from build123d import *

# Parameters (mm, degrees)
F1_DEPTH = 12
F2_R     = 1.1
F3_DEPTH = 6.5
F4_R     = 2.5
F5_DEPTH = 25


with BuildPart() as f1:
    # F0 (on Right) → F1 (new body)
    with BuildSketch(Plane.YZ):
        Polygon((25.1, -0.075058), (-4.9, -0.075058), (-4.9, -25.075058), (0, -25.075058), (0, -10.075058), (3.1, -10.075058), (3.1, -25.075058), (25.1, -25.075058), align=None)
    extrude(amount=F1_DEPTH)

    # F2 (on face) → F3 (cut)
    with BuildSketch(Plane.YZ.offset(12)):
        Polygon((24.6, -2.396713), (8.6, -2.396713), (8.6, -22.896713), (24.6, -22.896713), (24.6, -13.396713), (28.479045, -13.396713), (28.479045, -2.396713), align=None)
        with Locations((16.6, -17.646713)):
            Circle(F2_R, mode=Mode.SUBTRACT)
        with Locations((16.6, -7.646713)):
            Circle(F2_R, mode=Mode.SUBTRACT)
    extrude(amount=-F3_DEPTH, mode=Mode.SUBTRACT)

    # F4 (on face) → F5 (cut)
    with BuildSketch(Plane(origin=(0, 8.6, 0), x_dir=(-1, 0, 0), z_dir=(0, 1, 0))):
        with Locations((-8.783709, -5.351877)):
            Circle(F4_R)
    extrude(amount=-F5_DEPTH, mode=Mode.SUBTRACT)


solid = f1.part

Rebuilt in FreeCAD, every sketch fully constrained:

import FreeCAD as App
import Part
import Sketcher
from FreeCAD import Vector
Q = App.Units.Quantity


def add_polygon(sketch, points):
    """Adds a closed chain of lines whose ends are joined by coincident constraints."""
    first, n = sketch.GeometryCount, len(points)
    for a, b in zip(points, points[1:] + points[:1]):
        sketch.addGeometry(Part.LineSegment(App.Vector(*a, 0), App.Vector(*b, 0)), False)
    for i in range(n):
        sketch.addConstraint(Sketcher.Constraint("Coincident", first + i, 2, first + (i + 1) % n, 1))

doc = App.newDocument("Part")
body = doc.addObject("PartDesign::Body", "Body")

sketch1 = body.newObject("Sketcher::SketchObject", "Sketch")
sketch1.AttachmentSupport = (doc.getObject("YZ_Plane"), [""])
sketch1.MapMode = "FlatFace"
add_polygon(sketch1, [(25.1, -0.075058), (-4.9, -0.075058), (-4.9, -25.075058), (0, -25.075058), (0, -10.075058), (3.1, -10.075058), (3.1, -25.075058), (25.1, -25.075058)])
sketch1.addConstraint(Sketcher.Constraint("Horizontal", 0))
sketch1.addConstraint(Sketcher.Constraint("Vertical", 1))
sketch1.addConstraint(Sketcher.Constraint("Horizontal", 2))
sketch1.addConstraint(Sketcher.Constraint("Vertical", 3))
sketch1.addConstraint(Sketcher.Constraint("Horizontal", 4))
sketch1.addConstraint(Sketcher.Constraint("Vertical", 5))
sketch1.addConstraint(Sketcher.Constraint("Horizontal", 6))
sketch1.addConstraint(Sketcher.Constraint("Vertical", 7))
sketch1.addConstraint(Sketcher.Constraint("PointOnObject", 2, 2, -2))
sketch1.addConstraint(Sketcher.Constraint("Horizontal", 2, 2, 5, 2))
sketch1.addConstraint(Sketcher.Constraint("DistanceX", 0, 2, 0, 1, Q("30 mm")))
sketch1.addConstraint(Sketcher.Constraint("DistanceX", 6, 1, 6, 2, Q("22 mm")))
sketch1.addConstraint(Sketcher.Constraint("DistanceY", 1, 2, 1, 1, Q("25 mm")))
sketch1.addConstraint(Sketcher.Constraint("DistanceY", 3, 1, 3, 2, Q("15 mm")))
sketch1.addConstraint(Sketcher.Constraint("DistanceX", 2, 1, 2, 2, Q("4.9 mm")))
sketch1.addConstraint(Sketcher.Constraint("DistanceY", 0, 2, -1, 1, Q("0.075058 mm")))
pad1 = body.newObject("PartDesign::Pad", "Pad")
pad1.Profile = sketch1
pad1.Length = 12

sketch2 = body.newObject("Sketcher::SketchObject", "Sketch001")
sketch2.AttachmentSupport = (doc.getObject("YZ_Plane"), [""])
sketch2.MapMode = "FlatFace"
sketch2.AttachmentOffset = App.Placement(Vector(0, 0, 12), App.Rotation())
add_polygon(sketch2, [(8.6, -2.396713), (8.6, -22.896713), (24.6, -22.896713), (24.6, -13.396713), (28.479045, -13.396713), (28.479045, -2.396713)])
sketch2.addGeometry(Part.Circle(Vector(16.6, -17.646713, 0), Vector(0, 0, 1), 1.1), False)
sketch2.addGeometry(Part.Circle(Vector(16.6, -7.646713, 0), Vector(0, 0, 1), 1.1), False)
sketch2.addConstraint(Sketcher.Constraint("Vertical", 0))
sketch2.addConstraint(Sketcher.Constraint("Horizontal", 1))
sketch2.addConstraint(Sketcher.Constraint("Vertical", 2))
sketch2.addConstraint(Sketcher.Constraint("Horizontal", 3))
sketch2.addConstraint(Sketcher.Constraint("Vertical", 4))
sketch2.addConstraint(Sketcher.Constraint("Horizontal", 5))
sketch2.addConstraint(Sketcher.Constraint("Equal", 6, 7))
sketch2.addConstraint(Sketcher.Constraint("Vertical", 6, 3, 7, 3))
sketch2.addConstraint(Sketcher.Constraint("Diameter", 6, Q("2.2 mm")))
sketch2.addConstraint(Sketcher.Constraint("DistanceX", 1, 1, 1, 2, Q("16 mm")))
sketch2.addConstraint(Sketcher.Constraint("DistanceY", 4, 1, 4, 2, Q("11 mm")))
sketch2.addConstraint(Sketcher.Constraint("DistanceY", 0, 2, 0, 1, Q("20.5 mm")))
sketch2.addConstraint(Sketcher.Constraint("DistanceY", 6, 3, 7, 3, Q("10 mm")))
sketch2.addConstraint(Sketcher.Constraint("DistanceX", 0, 2, 6, 3, Q("8 mm")))
sketch2.addConstraint(Sketcher.Constraint("DistanceX", -1, 1, 6, 3, Q("16.6 mm")))
sketch2.addConstraint(Sketcher.Constraint("DistanceY", 0, 2, 6, 3, Q("5.25 mm")))
sketch2.addConstraint(Sketcher.Constraint("DistanceX", 3, 1, 3, 2, Q("3.879045 mm")))
sketch2.addConstraint(Sketcher.Constraint("DistanceY", 6, 3, -1, 1, Q("17.646713 mm")))
pocket1 = body.newObject("PartDesign::Pocket", "Pocket")
pocket1.Profile = sketch2
pocket1.Length = 6.5

sketch3 = body.newObject("Sketcher::SketchObject", "Sketch002")
sketch3.AttachmentSupport = (doc.getObject("XZ_Plane"), [""])
sketch3.MapMode = "FlatFace"
sketch3.AttachmentOffset = App.Placement(Vector(0, 0, -8.6), App.Rotation())
sketch3.addGeometry(Part.Circle(Vector(8.783709, -5.351877, 0), Vector(0, 0, 1), 2.5), False)
sketch3.addConstraint(Sketcher.Constraint("Diameter", 0, Q("5 mm")))
sketch3.addConstraint(Sketcher.Constraint("DistanceX", -1, 1, 0, 3, Q("8.783709 mm")))
sketch3.addConstraint(Sketcher.Constraint("DistanceY", 0, 3, -1, 1, Q("5.351877 mm")))
pocket2 = body.newObject("PartDesign::Pocket", "Pocket001")
pocket2.Profile = sketch3
pocket2.Length = 25
pocket2.Reversed = True

doc.recompute()
